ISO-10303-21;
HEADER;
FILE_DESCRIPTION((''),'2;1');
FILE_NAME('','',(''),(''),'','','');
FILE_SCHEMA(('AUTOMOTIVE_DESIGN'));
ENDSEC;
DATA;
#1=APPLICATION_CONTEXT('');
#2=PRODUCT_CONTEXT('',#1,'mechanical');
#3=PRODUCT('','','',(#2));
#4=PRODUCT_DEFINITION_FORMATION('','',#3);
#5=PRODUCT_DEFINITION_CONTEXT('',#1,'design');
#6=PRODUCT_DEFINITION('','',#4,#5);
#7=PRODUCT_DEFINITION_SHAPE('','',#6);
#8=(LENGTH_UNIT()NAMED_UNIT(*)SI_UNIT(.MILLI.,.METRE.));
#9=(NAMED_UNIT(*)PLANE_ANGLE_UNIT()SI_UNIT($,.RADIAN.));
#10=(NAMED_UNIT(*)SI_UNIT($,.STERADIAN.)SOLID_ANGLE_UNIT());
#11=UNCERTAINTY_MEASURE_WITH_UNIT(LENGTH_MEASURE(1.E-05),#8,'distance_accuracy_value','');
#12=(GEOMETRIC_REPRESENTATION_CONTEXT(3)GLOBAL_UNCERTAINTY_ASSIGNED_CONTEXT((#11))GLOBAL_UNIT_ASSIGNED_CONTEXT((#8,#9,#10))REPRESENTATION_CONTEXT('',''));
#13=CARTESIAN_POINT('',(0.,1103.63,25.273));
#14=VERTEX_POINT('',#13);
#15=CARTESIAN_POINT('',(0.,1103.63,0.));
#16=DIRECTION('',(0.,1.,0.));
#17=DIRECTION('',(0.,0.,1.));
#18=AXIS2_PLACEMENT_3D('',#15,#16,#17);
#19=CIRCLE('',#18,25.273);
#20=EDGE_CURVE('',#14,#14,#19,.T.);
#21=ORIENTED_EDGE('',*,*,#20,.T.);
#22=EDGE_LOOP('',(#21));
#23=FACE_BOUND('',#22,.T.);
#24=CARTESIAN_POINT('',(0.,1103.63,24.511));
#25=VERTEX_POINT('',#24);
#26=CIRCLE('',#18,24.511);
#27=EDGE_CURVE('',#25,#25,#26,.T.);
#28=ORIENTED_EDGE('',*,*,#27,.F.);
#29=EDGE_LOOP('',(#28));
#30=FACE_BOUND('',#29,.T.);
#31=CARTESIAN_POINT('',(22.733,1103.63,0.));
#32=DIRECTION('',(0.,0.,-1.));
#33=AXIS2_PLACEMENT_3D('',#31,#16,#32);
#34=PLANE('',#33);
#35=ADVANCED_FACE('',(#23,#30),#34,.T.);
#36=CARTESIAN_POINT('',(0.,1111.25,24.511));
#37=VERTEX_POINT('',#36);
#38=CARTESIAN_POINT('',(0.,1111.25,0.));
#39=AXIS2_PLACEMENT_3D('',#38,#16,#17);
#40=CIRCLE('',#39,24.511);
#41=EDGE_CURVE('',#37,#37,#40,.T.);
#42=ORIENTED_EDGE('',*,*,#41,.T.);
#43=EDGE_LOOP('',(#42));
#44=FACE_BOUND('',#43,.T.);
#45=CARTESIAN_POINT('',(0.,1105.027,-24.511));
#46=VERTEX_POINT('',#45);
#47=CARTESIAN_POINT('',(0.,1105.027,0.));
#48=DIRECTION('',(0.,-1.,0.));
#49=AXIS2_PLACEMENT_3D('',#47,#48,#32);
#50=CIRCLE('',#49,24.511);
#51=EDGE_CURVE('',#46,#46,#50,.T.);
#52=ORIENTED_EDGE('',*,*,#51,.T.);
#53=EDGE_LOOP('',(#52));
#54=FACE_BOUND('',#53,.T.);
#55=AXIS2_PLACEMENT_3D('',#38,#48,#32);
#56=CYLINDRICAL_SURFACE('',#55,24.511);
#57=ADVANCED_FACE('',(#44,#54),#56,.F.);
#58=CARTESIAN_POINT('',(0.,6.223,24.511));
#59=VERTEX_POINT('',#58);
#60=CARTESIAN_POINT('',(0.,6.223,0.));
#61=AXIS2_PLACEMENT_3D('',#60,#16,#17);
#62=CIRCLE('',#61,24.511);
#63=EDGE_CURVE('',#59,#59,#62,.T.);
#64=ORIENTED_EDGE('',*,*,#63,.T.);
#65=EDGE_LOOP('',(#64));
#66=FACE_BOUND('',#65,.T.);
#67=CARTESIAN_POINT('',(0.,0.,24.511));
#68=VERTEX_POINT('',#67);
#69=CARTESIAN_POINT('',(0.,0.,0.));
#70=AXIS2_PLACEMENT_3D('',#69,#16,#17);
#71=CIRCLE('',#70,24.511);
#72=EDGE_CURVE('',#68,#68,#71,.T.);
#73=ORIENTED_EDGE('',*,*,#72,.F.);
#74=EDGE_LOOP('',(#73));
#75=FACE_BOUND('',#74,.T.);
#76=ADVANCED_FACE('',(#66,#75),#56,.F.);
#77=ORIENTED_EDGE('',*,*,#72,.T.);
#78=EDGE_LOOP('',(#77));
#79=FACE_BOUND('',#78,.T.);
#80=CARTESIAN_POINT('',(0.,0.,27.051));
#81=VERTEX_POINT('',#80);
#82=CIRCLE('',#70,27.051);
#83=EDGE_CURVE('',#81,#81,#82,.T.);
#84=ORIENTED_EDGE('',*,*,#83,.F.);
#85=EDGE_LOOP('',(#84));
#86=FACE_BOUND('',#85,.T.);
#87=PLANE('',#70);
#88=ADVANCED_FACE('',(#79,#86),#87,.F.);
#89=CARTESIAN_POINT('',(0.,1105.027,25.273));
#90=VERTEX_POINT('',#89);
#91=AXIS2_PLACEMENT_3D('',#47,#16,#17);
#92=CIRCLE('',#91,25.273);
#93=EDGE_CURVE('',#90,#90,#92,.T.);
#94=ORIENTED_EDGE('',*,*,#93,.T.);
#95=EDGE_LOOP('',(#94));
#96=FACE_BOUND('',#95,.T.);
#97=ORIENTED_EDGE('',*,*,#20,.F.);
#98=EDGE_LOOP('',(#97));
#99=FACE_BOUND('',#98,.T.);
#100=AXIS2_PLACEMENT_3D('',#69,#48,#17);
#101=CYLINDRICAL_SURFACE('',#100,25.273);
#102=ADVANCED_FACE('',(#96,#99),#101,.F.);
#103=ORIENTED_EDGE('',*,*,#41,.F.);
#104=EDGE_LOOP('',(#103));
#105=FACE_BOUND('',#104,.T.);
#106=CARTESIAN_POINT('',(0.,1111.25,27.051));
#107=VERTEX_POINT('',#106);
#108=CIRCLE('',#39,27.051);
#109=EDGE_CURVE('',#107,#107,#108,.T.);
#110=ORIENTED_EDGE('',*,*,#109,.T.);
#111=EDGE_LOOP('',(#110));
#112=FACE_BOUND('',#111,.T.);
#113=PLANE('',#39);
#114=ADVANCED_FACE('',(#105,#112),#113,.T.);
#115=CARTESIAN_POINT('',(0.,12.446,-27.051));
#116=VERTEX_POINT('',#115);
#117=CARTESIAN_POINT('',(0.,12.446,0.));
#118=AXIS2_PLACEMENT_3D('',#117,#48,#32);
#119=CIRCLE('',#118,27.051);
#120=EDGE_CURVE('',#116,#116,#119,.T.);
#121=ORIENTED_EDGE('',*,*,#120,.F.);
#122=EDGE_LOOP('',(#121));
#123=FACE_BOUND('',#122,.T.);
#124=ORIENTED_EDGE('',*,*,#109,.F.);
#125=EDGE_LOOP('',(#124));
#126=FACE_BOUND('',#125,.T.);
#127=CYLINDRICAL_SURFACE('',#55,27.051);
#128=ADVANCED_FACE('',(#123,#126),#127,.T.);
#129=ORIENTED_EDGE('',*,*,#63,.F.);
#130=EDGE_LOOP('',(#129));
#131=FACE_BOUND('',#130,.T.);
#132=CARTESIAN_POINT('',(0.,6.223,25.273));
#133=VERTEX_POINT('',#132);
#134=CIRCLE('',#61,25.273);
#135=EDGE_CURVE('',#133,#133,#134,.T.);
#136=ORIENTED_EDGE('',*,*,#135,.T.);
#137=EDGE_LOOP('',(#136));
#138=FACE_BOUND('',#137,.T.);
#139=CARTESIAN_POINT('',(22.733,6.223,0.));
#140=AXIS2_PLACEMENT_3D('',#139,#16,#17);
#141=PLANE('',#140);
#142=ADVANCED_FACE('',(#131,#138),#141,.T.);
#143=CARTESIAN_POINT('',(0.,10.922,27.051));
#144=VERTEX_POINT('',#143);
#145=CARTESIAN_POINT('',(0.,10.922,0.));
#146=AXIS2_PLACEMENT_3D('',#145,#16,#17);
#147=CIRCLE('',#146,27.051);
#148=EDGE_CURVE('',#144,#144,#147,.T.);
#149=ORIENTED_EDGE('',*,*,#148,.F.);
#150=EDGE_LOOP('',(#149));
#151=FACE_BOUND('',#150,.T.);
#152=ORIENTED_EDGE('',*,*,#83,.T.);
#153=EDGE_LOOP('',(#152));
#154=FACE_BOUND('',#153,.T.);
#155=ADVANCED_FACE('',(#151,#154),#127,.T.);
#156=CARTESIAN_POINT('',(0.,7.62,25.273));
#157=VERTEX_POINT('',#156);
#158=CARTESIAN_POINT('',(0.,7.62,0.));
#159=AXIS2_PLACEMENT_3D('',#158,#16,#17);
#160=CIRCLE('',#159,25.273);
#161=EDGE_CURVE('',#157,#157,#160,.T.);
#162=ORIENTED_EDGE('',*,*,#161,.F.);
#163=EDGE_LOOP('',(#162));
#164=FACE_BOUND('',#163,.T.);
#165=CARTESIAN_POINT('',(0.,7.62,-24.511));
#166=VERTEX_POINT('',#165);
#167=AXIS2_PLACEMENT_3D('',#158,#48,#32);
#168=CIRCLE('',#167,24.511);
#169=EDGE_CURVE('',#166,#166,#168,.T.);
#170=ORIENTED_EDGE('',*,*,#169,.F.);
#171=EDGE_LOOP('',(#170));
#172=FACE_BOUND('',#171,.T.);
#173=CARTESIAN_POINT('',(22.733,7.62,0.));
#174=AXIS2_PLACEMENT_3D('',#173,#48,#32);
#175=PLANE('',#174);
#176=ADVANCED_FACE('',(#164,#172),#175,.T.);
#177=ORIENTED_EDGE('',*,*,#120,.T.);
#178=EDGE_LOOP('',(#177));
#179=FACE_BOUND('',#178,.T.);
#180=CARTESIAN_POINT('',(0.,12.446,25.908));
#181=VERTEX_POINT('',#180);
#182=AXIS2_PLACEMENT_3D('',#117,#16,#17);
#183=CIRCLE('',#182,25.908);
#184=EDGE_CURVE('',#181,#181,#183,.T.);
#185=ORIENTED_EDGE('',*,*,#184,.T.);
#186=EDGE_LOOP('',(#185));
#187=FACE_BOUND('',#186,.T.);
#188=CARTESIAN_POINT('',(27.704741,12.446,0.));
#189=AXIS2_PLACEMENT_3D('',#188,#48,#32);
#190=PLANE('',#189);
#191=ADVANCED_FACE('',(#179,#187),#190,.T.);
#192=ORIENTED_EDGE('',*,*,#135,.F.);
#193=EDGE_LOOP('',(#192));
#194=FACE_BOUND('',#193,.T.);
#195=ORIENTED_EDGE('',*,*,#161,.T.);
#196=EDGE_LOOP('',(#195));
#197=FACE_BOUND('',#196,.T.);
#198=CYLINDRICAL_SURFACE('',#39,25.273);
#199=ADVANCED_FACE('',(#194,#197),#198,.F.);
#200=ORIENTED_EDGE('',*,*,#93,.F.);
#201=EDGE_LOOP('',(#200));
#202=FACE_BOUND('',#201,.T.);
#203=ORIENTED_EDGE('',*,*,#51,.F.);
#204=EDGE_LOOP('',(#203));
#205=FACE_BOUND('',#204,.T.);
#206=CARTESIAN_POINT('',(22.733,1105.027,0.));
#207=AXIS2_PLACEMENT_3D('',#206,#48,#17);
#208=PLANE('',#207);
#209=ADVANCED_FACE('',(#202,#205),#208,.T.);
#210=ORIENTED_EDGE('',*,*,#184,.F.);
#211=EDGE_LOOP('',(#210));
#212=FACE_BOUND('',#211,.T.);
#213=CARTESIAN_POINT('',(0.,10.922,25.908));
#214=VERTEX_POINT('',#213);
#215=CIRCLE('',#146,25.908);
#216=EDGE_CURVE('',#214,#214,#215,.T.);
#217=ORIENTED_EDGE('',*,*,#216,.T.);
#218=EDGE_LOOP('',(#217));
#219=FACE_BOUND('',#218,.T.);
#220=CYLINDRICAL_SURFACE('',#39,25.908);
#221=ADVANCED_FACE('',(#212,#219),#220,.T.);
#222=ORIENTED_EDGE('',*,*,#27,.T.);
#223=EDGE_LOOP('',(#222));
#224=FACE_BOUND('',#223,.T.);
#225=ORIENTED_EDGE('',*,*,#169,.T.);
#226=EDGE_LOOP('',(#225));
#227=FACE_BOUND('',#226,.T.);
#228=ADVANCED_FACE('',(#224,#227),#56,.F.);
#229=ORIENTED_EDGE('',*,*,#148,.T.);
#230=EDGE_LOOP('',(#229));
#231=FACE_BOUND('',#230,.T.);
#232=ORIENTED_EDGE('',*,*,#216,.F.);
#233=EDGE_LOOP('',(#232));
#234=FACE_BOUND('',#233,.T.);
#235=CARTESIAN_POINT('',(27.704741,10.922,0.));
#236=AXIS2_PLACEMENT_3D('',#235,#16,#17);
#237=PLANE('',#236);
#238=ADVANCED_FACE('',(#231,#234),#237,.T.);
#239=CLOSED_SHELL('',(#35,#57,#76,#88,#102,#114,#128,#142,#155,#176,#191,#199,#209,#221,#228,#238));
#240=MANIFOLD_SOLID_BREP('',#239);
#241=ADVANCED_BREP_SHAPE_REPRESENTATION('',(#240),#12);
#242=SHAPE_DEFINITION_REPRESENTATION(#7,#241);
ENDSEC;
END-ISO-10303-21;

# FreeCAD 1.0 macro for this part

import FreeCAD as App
import Part
import Sketcher

V = App.Vector
Q = App.Units.Quantity


def add_polygon(sketch, points):
    """Adds a closed chain of lines whose ends are joined by coincident constraints."""
    first, n = sketch.GeometryCount, len(points)
    for a, b in zip(points, points[1:] + points[:1]):
        sketch.addGeometry(Part.LineSegment(App.Vector(*a, 0), App.Vector(*b, 0)), False)
    for i in range(n):
        sketch.addConstraint(Sketcher.Constraint("Coincident", first + i, 2, first + (i + 1) % n, 1))

doc = App.newDocument("Part")
body = doc.addObject("PartDesign::Body", "Body")

sketch1 = body.newObject("Sketcher::SketchObject", "Sketch")
sketch1.AttachmentSupport = (doc.getObject("XZ_Plane"), [""])
sketch1.MapMode = "FlatFace"
sketch1.addGeometry(Part.Circle(V(0, 0, 0), V(0, 0, 1), 27), False)
sketch1.addGeometry(Part.Circle(V(0, 0, 0), V(0, 0, 1), 25), False)
sketch1.addConstraint(Sketcher.Constraint("Coincident", 0, 3, -1, 1))
sketch1.addConstraint(Sketcher.Constraint("Coincident", 1, 3, -1, 1))
sketch1.addConstraint(Sketcher.Constraint("Diameter", 0, Q("2.13 in")))
sketch1.addConstraint(Sketcher.Constraint("Diameter", 1, Q("1.93 in")))
pad1 = body.newObject("PartDesign::Pad", "Pad")
pad1.Profile = sketch1
pad1.Length = Q("43.75 in")
pad1.Reversed = True

sketch2 = body.newObject("Sketcher::SketchObject", "Sketch001")
sketch2.AttachmentSupport = (doc.getObject("XY_Plane"), [""])
sketch2.MapMode = "FlatFace"
add_polygon(sketch2, [(22.7, 7.6), (22.7, 6.2), (25.3, 6.2), (25.3, 7.6)])
sketch2.addConstraint(Sketcher.Constraint("Vertical", 0))
sketch2.addConstraint(Sketcher.Constraint("Horizontal", 1))
sketch2.addConstraint(Sketcher.Constraint("Vertical", 2))
sketch2.addConstraint(Sketcher.Constraint("Horizontal", 3))
sketch2.addConstraint(Sketcher.Constraint("DistanceX", 1, 1, 1, 2, Q("0.1 in")))
sketch2.addConstraint(Sketcher.Constraint("DistanceY", -1, 1, 2, 2, Q("0.3 in")))
sketch2.addConstraint(Sketcher.Constraint("DistanceY", 0, 2, 0, 1, Q("0.055 in")))
sketch2.addConstraint(Sketcher.Constraint("DistanceX", -1, 1, 0, 2, Q("0.895 in")))
groove = body.newObject("PartDesign::Groove", "Groove")
groove.Profile = sketch2
groove.ReferenceAxis = (sketch2, ["V_Axis"])
groove.Angle = 360
doc.recompute()

datumplane = body.newObject("PartDesign::Plane", "DatumPlane")
datumplane.AttachmentSupport = (doc.getObject("XZ_Plane"), [""])
datumplane.MapMode = "FlatFace"
datumplane.AttachmentOffset = App.Placement(V(0, 0, -21.875 * 25.4), App.Rotation())
mirrored = body.newObject("PartDesign::Mirrored", "Mirrored")
mirrored.Originals = [groove]
mirrored.MirrorPlane = (datumplane, [""])
body.Tip = mirrored

sketch3 = body.newObject("Sketcher::SketchObject", "Sketch002")
sketch3.AttachmentSupport = (doc.getObject("XY_Plane"), [""])
sketch3.MapMode = "FlatFace"
add_polygon(sketch3, [(25.9, 12.4), (25.9, 10.9), (27.7, 10.9), (27.7, 12.4)])
sketch3.addConstraint(Sketcher.Constraint("Vertical", 0))
sketch3.addConstraint(Sketcher.Constraint("Horizontal", 1))
sketch3.addConstraint(Sketcher.Constraint("Vertical", 2))
sketch3.addConstraint(Sketcher.Constraint("Horizontal", 3))
sketch3.addConstraint(Sketcher.Constraint("DistanceY", 0, 2, 0, 1, Q("0.06 in")))
sketch3.addConstraint(Sketcher.Constraint("DistanceX", -1, 1, 0, 2, Q("1.02 in")))
sketch3.addConstraint(Sketcher.Constraint("DistanceY", -1, 1, 0, 2, Q("0.43 in")))
sketch3.addConstraint(Sketcher.Constraint("DistanceX", 1, 1, 1, 2, Q("1.796741 mm")))
groove2 = body.newObject("PartDesign::Groove", "Groove001")
groove2.Profile = sketch3
groove2.ReferenceAxis = (sketch3, ["V_Axis"])
groove2.Angle = 360

doc.recompute()
